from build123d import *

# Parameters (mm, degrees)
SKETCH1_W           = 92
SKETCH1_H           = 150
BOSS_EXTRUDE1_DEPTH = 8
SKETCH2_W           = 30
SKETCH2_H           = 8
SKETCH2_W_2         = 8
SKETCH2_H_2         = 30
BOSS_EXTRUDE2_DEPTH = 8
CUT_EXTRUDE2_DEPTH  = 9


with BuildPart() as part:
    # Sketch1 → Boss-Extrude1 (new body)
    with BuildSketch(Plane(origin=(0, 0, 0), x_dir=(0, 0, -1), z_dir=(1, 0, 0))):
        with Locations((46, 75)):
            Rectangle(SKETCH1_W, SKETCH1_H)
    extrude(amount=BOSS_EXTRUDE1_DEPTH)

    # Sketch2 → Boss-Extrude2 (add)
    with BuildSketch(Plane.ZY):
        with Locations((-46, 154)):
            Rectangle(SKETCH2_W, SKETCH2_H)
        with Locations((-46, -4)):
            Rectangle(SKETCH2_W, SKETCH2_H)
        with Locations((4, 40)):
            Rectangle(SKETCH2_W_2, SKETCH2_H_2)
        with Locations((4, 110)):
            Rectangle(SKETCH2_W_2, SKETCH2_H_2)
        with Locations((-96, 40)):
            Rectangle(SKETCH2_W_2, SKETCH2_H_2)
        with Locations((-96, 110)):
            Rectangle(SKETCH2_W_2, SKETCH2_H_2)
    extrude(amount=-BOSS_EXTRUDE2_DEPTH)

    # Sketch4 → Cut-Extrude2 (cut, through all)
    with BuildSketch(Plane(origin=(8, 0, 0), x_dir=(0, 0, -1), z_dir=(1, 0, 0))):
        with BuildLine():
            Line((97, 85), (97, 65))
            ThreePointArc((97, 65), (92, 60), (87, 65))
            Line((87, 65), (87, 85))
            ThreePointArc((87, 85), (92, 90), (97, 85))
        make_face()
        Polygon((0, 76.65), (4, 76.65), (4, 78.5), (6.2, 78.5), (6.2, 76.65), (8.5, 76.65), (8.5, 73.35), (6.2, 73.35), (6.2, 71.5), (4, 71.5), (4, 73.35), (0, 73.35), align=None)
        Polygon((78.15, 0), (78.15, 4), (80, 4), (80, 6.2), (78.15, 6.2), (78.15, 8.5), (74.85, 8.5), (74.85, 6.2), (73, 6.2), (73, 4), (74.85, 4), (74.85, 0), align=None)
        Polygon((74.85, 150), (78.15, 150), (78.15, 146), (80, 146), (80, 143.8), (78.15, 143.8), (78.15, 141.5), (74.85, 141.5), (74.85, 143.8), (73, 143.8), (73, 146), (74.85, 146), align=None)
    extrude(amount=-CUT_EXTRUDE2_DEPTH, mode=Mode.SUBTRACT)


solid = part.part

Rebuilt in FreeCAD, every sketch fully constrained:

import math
import FreeCAD as App
import Part
import Sketcher
from FreeCAD import Vector
Q = App.Units.Quantity

doc = App.newDocument("Part")
body = doc.addObject("PartDesign::Body", "Body")

# Sketch on YZ plane
sketch1 = body.newObject("Sketcher::SketchObject", "Sketch")
sketch1.AttachmentSupport = (doc.getObject("YZ_Plane"), [""])
sketch1.MapMode = "FlatFace"
sketch1.addGeometry(Part.LineSegment(Vector(150, 0, 0), Vector(0, 0, 0)), False)
sketch1.addGeometry(Part.LineSegment(Vector(0, 0, 0), Vector(0, -92, 0)), False)
sketch1.addGeometry(Part.LineSegment(Vector(0, -92, 0), Vector(150, -92, 0)), False)
sketch1.addGeometry(Part.LineSegment(Vector(150, -92, 0), Vector(150, 0, 0)), False)
sketch1.addConstraint(Sketcher.Constraint("Coincident", 0, 2, 1, 1))
sketch1.addConstraint(Sketcher.Constraint("Coincident", 1, 2, 2, 1))
sketch1.addConstraint(Sketcher.Constraint("Coincident", 2, 2, 3, 1))
sketch1.addConstraint(Sketcher.Constraint("Coincident", 3, 2, 0, 1))
sketch1.addConstraint(Sketcher.Constraint("Horizontal", 0))
sketch1.addConstraint(Sketcher.Constraint("Vertical", 1))
sketch1.addConstraint(Sketcher.Constraint("Horizontal", 2))
sketch1.addConstraint(Sketcher.Constraint("Vertical", 3))
sketch1.addConstraint(Sketcher.Constraint("Coincident", 0, 2, -1, 1))
sketch1.addConstraint(Sketcher.Constraint("DistanceX", 0, 2, 0, 1, Q("150 mm")))
sketch1.addConstraint(Sketcher.Constraint("DistanceY", 1, 2, 1, 1, Q("92 mm")))
pad1 = body.newObject("PartDesign::Pad", "Pad")
pad1.Profile = sketch1
pad1.Length = 8

# Sketch on YZ plane
sketch2 = body.newObject("Sketcher::SketchObject", "Sketch001")
sketch2.AttachmentSupport = (doc.getObject("YZ_Plane"), [""])
sketch2.MapMode = "FlatFace"
sketch2.addGeometry(Part.LineSegment(Vector(158, -61, 0), Vector(150, -61, 0)), False)
sketch2.addGeometry(Part.LineSegment(Vector(150, -61, 0), Vector(150, -31, 0)), False)
sketch2.addGeometry(Part.LineSegment(Vector(150, -31, 0), Vector(158, -31, 0)), False)
sketch2.addGeometry(Part.LineSegment(Vector(158, -31, 0), Vector(158, -61, 0)), False)
sketch2.addGeometry(Part.LineSegment(Vector(0, -61, 0), Vector(-8, -61, 0)), False)
sketch2.addGeometry(Part.LineSegment(Vector(-8, -61, 0), Vector(-8, -31, 0)), False)
sketch2.addGeometry(Part.LineSegment(Vector(-8, -31, 0), Vector(0, -31, 0)), False)
sketch2.addGeometry(Part.LineSegment(Vector(0, -31, 0), Vector(0, -61, 0)), False)
sketch2.addGeometry(Part.LineSegment(Vector(55, 0, 0), Vector(25, 0, 0)), False)
sketch2.addGeometry(Part.LineSegment(Vector(25, 0, 0), Vector(25, 8, 0)), False)
sketch2.addGeometry(Part.LineSegment(Vector(25, 8, 0), Vector(55, 8, 0)), False)
sketch2.addGeometry(Part.LineSegment(Vector(55, 8, 0), Vector(55, 0, 0)), False)
sketch2.addGeometry(Part.LineSegment(Vector(125, 0, 0), Vector(95, 0, 0)), False)
sketch2.addGeometry(Part.LineSegment(Vector(95, 0, 0), Vector(95, 8, 0)), False)
sketch2.addGeometry(Part.LineSegment(Vector(95, 8, 0), Vector(125, 8, 0)), False)
sketch2.addGeometry(Part.LineSegment(Vector(125, 8, 0), Vector(125, 0, 0)), False)
sketch2.addGeometry(Part.LineSegment(Vector(55, -100, 0), Vector(25, -100, 0)), False)
sketch2.addGeometry(Part.LineSegment(Vector(25, -100, 0), Vector(25, -92, 0)), False)
sketch2.addGeometry(Part.LineSegment(Vector(25, -92, 0), Vector(55, -92, 0)), False)
sketch2.addGeometry(Part.LineSegment(Vector(55, -92, 0), Vector(55, -100, 0)), False)
sketch2.addGeometry(Part.LineSegment(Vector(125, -100, 0), Vector(95, -100, 0)), False)
sketch2.addGeometry(Part.LineSegment(Vector(95, -100, 0), Vector(95, -92, 0)), False)
sketch2.addGeometry(Part.LineSegment(Vector(95, -92, 0), Vector(125, -92, 0)), False)
sketch2.addGeometry(Part.LineSegment(Vector(125, -92, 0), Vector(125, -100, 0)), False)
sketch2.addConstraint(Sketcher.Constraint("Coincident", 0, 2, 1, 1))
sketch2.addConstraint(Sketcher.Constraint("Coincident", 1, 2, 2, 1))
sketch2.addConstraint(Sketcher.Constraint("Coincident", 2, 2, 3, 1))
sketch2.addConstraint(Sketcher.Constraint("Coincident", 3, 2, 0, 1))
sketch2.addConstraint(Sketcher.Constraint("Coincident", 4, 2, 5, 1))
sketch2.addConstraint(Sketcher.Constraint("Coincident", 5, 2, 6, 1))
sketch2.addConstraint(Sketcher.Constraint("Coincident", 6, 2, 7, 1))
sketch2.addConstraint(Sketcher.Constraint("Coincident", 7, 2, 4, 1))
sketch2.addConstraint(Sketcher.Constraint("Coincident", 8, 2, 9, 1))
sketch2.addConstraint(Sketcher.Constraint("Coincident", 9, 2, 10, 1))
sketch2.addConstraint(Sketcher.Constraint("Coincident", 10, 2, 11, 1))
sketch2.addConstraint(Sketcher.Constraint("Coincident", 11, 2, 8, 1))
sketch2.addConstraint(Sketcher.Constraint("Coincident", 12, 2, 13, 1))
sketch2.addConstraint(Sketcher.Constraint("Coincident", 13, 2, 14, 1))
sketch2.addConstraint(Sketcher.Constraint("Coincident", 14, 2, 15, 1))
sketch2.addConstraint(Sketcher.Constraint("Coincident", 15, 2, 12, 1))
sketch2.addConstraint(Sketcher.Constraint("Coincident", 16, 2, 17, 1))
sketch2.addConstraint(Sketcher.Constraint("Coincident", 17, 2, 18, 1))
sketch2.addConstraint(Sketcher.Constraint("Coincident", 18, 2, 19, 1))
sketch2.addConstraint(Sketcher.Constraint("Coincident", 19, 2, 16, 1))
sketch2.addConstraint(Sketcher.Constraint("Coincident", 20, 2, 21, 1))
sketch2.addConstraint(Sketcher.Constraint("Coincident", 21, 2, 22, 1))
sketch2.addConstraint(Sketcher.Constraint("Coincident", 22, 2, 23, 1))
sketch2.addConstraint(Sketcher.Constraint("Coincident", 23, 2, 20, 1))
sketch2.addConstraint(Sketcher.Constraint("Horizontal", 0))
sketch2.addConstraint(Sketcher.Constraint("Vertical", 1))
sketch2.addConstraint(Sketcher.Constraint("Horizontal", 2))
sketch2.addConstraint(Sketcher.Constraint("Vertical", 3))
sketch2.addConstraint(Sketcher.Constraint("Horizontal", 4))
sketch2.addConstraint(Sketcher.Constraint("Vertical", 5))
sketch2.addConstraint(Sketcher.Constraint("Horizontal", 6))
sketch2.addConstraint(Sketcher.Constraint("Vertical", 7))
sketch2.addConstraint(Sketcher.Constraint("Horizontal", 8))
sketch2.addConstraint(Sketcher.Constraint("Vertical", 9))
sketch2.addConstraint(Sketcher.Constraint("Horizontal", 10))
sketch2.addConstraint(Sketcher.Constraint("Vertical", 11))
sketch2.addConstraint(Sketcher.Constraint("Horizontal", 12))
sketch2.addConstraint(Sketcher.Constraint("Vertical", 13))
sketch2.addConstraint(Sketcher.Constraint("Horizontal", 14))
sketch2.addConstraint(Sketcher.Constraint("Vertical", 15))
sketch2.addConstraint(Sketcher.Constraint("Horizontal", 16))
sketch2.addConstraint(Sketcher.Constraint("Vertical", 17))
sketch2.addConstraint(Sketcher.Constraint("Horizontal", 18))
sketch2.addConstraint(Sketcher.Constraint("Vertical", 19))
sketch2.addConstraint(Sketcher.Constraint("Horizontal", 20))
sketch2.addConstraint(Sketcher.Constraint("Vertical", 21))
sketch2.addConstraint(Sketcher.Constraint("Horizontal", 22))
sketch2.addConstraint(Sketcher.Constraint("Vertical", 23))
sketch2.addConstraint(Sketcher.Constraint("PointOnObject", 6, 2, -2))
sketch2.addConstraint(Sketcher.Constraint("PointOnObject", 8, 2, -1))
sketch2.addConstraint(Sketcher.Constraint("PointOnObject", 12, 2, -1))
sketch2.addConstraint(Sketcher.Constraint("Horizontal", 3, 2, 4, 2))
sketch2.addConstraint(Sketcher.Constraint("Horizontal", 2, 2, 5, 2))
sketch2.addConstraint(Sketcher.Constraint("Horizontal", 10, 2, 13, 2))
sketch2.addConstraint(Sketcher.Constraint("Horizontal", 19, 2, 20, 2))
sketch2.addConstraint(Sketcher.Constraint("Horizontal", 18, 2, 21, 2))
sketch2.addConstraint(Sketcher.Constraint("Vertical", 9, 2, 16, 2))
sketch2.addConstraint(Sketcher.Constraint("Vertical", 11, 2, 18, 2))
sketch2.addConstraint(Sketcher.Constraint("Vertical", 13, 2, 20, 2))
sketch2.addConstraint(Sketcher.Constraint("Vertical", 15, 2, 22, 2))
sketch2.addConstraint(Sketcher.Constraint("Equal", 2, 4))
sketch2.addConstraint(Sketcher.Constraint("Equal", 10, 12))
sketch2.addConstraint(Sketcher.Constraint("Equal", 22, 1))
sketch2.addConstraint(Sketcher.Constraint("Equal", 6, 9))
sketch2.addConstraint(Sketcher.Constraint("Equal", 15, 17))
sketch2.addConstraint(Sketcher.Constraint("DistanceX", 0, 2, 0, 1, Q("8 mm")))
sketch2.addConstraint(Sketcher.Constraint("DistanceX", 8, 2, 8, 1, Q("30 mm")))
sketch2.addConstraint(Sketcher.Constraint("DistanceX", -1, 1, 0, 2, Q("150 mm")))
sketch2.addConstraint(Sketcher.Constraint("DistanceY", 0, 2, -1, 1, Q("61 mm")))
sketch2.addConstraint(Sketcher.Constraint("DistanceX", -1, 1, 8, 2, Q("25 mm")))
sketch2.addConstraint(Sketcher.Constraint("DistanceX", -1, 1, 12, 2, Q("95 mm")))
sketch2.addConstraint(Sketcher.Constraint("DistanceY", 16, 2, -1, 1, Q("100 mm")))
pad2 = body.newObject("PartDesign::Pad", "Pad001")
pad2.Profile = sketch2
pad2.Length = 8

# Sketch on YZ plane
sketch3 = body.newObject("Sketcher::SketchObject", "Sketch002")
sketch3.AttachmentSupport = (doc.getObject("YZ_Plane"), [""])
sketch3.MapMode = "FlatFace"
sketch3.AttachmentOffset = App.Placement(Vector(0, 0, 8), App.Rotation())
sketch3.addGeometry(Part.LineSegment(Vector(65, -97, 0), Vector(85, -97, 0)), False)
sketch3.addGeometry(Part.ArcOfCircle(Part.Circle(Vector(85, -92, 0), Vector(0, 0, 1), 5), math.radians(-90), math.radians(90)), False)
sketch3.addGeometry(Part.LineSegment(Vector(85, -87, 0), Vector(65, -87, 0)), False)
sketch3.addGeometry(Part.ArcOfCircle(Part.Circle(Vector(65, -92, 0), Vector(0, 0, 1), 5), math.radians(90), math.radians(270)), False)
sketch3.addGeometry(Part.LineSegment(Vector(76.65, -4, 0), Vector(76.65, 0, 0)), False)
sketch3.addGeometry(Part.LineSegment(Vector(76.65, 0, 0), Vector(73.35, 0, 0)), False)
sketch3.addGeometry(Part.LineSegment(Vector(73.35, 0, 0), Vector(73.35, -4, 0)), False)
sketch3.addGeometry(Part.LineSegment(Vector(73.35, -4, 0), Vector(71.5, -4, 0)), False)
sketch3.addGeometry(Part.LineSegment(Vector(71.5, -4, 0), Vector(71.5, -6.2, 0)), False)
sketch3.addGeometry(Part.LineSegment(Vector(71.5, -6.2, 0), Vector(73.35, -6.2, 0)), False)
sketch3.addGeometry(Part.LineSegment(Vector(73.35, -6.2, 0), Vector(73.35, -8.5, 0)), False)
sketch3.addGeometry(Part.LineSegment(Vector(73.35, -8.5, 0), Vector(76.65, -8.5, 0)), False)
sketch3.addGeometry(Part.LineSegment(Vector(76.65, -8.5, 0), Vector(76.65, -6.2, 0)), False)
sketch3.addGeometry(Part.LineSegment(Vector(76.65, -6.2, 0), Vector(78.5, -6.2, 0)), False)
sketch3.addGeometry(Part.LineSegment(Vector(78.5, -6.2, 0), Vector(78.5, -4, 0)), False)
sketch3.addGeometry(Part.LineSegment(Vector(78.5, -4, 0), Vector(76.65, -4, 0)), False)
sketch3.addGeometry(Part.LineSegment(Vector(0, -78.15, 0), Vector(4, -78.15, 0)), False)
sketch3.addGeometry(Part.LineSegment(Vector(4, -78.15, 0), Vector(4, -80, 0)), False)
sketch3.addGeometry(Part.LineSegment(Vector(4, -80, 0), Vector(6.2, -80, 0)), False)
sketch3.addGeometry(Part.LineSegment(Vector(6.2, -80, 0), Vector(6.2, -78.15, 0)), False)
sketch3.addGeometry(Part.LineSegment(Vector(6.2, -78.15, 0), Vector(8.5, -78.15, 0)), False)
sketch3.addGeometry(Part.LineSegment(Vector(8.5, -78.15, 0), Vector(8.5, -74.85, 0)), False)
sketch3.addGeometry(Part.LineSegment(Vector(8.5, -74.85, 0), Vector(6.2, -74.85, 0)), False)
sketch3.addGeometry(Part.LineSegment(Vector(6.2, -74.85, 0), Vector(6.2, -73, 0)), False)
sketch3.addGeometry(Part.LineSegment(Vector(6.2, -73, 0), Vector(4, -73, 0)), False)
sketch3.addGeometry(Part.LineSegment(Vector(4, -73, 0), Vector(4, -74.85, 0)), False)
sketch3.addGeometry(Part.LineSegment(Vector(4, -74.85, 0), Vector(0, -74.85, 0)), False)
sketch3.addGeometry(Part.LineSegment(Vector(0, -74.85, 0), Vector(0, -78.15, 0)), False)
sketch3.addGeometry(Part.LineSegment(Vector(150, -78.15, 0), Vector(150, -74.85, 0)), False)
sketch3.addGeometry(Part.LineSegment(Vector(150, -74.85, 0), Vector(146, -74.85, 0)), False)
sketch3.addGeometry(Part.LineSegment(Vector(146, -74.85, 0), Vector(146, -73, 0)), False)
sketch3.addGeometry(Part.LineSegment(Vector(146, -73, 0), Vector(143.8, -73, 0)), False)
sketch3.addGeometry(Part.LineSegment(Vector(143.8, -73, 0), Vector(143.8, -74.85, 0)), False)
sketch3.addGeometry(Part.LineSegment(Vector(143.8, -74.85, 0), Vector(141.5, -74.85, 0)), False)
sketch3.addGeometry(Part.LineSegment(Vector(141.5, -74.85, 0), Vector(141.5, -78.15, 0)), False)
sketch3.addGeometry(Part.LineSegment(Vector(141.5, -78.15, 0), Vector(143.8, -78.15, 0)), False)
sketch3.addGeometry(Part.LineSegment(Vector(143.8, -78.15, 0), Vector(143.8, -80, 0)), False)
sketch3.addGeometry(Part.LineSegment(Vector(143.8, -80, 0), Vector(146, -80, 0)), False)
sketch3.addGeometry(Part.LineSegment(Vector(146, -80, 0), Vector(146, -78.15, 0)), False)
sketch3.addGeometry(Part.LineSegment(Vector(146, -78.15, 0), Vector(150, -78.15, 0)), False)
sketch3.addConstraint(Sketcher.Constraint("Tangent", 0, 2, 1, 1))
sketch3.addConstraint(Sketcher.Constraint("Tangent", 1, 2, 2, 1))
sketch3.addConstraint(Sketcher.Constraint("Tangent", 2, 2, 3, 1))
sketch3.addConstraint(Sketcher.Constraint("Tangent", 3, 2, 0, 1))
sketch3.addConstraint(Sketcher.Constraint("Coincident", 4, 2, 5, 1))
sketch3.addConstraint(Sketcher.Constraint("Coincident", 5, 2, 6, 1))
sketch3.addConstraint(Sketcher.Constraint("Coincident", 6, 2, 7, 1))
sketch3.addConstraint(Sketcher.Constraint("Coincident", 7, 2, 8, 1))
sketch3.addConstraint(Sketcher.Constraint("Coincident", 8, 2, 9, 1))
sketch3.addConstraint(Sketcher.Constraint("Coincident", 9, 2, 10, 1))
sketch3.addConstraint(Sketcher.Constraint("Coincident", 10, 2, 11, 1))
sketch3.addConstraint(Sketcher.Constraint("Coincident", 11, 2, 12, 1))
sketch3.addConstraint(Sketcher.Constraint("Coincident", 12, 2, 13, 1))
sketch3.addConstraint(Sketcher.Constraint("Coincident", 13, 2, 14, 1))
sketch3.addConstraint(Sketcher.Constraint("Coincident", 14, 2, 15, 1))
sketch3.addConstraint(Sketcher.Constraint("Coincident", 15, 2, 4, 1))
sketch3.addConstraint(Sketcher.Constraint("Coincident", 16, 2, 17, 1))
sketch3.addConstraint(Sketcher.Constraint("Coincident", 17, 2, 18, 1))
sketch3.addConstraint(Sketcher.Constraint("Coincident", 18, 2, 19, 1))
sketch3.addConstraint(Sketcher.Constraint("Coincident", 19, 2, 20, 1))
sketch3.addConstraint(Sketcher.Constraint("Coincident", 20, 2, 21, 1))
sketch3.addConstraint(Sketcher.Constraint("Coincident", 21, 2, 22, 1))
sketch3.addConstraint(Sketcher.Constraint("Coincident", 22, 2, 23, 1))
sketch3.addConstraint(Sketcher.Constraint("Coincident", 23, 2, 24, 1))
sketch3.addConstraint(Sketcher.Constraint("Coincident", 24, 2, 25, 1))
sketch3.addConstraint(Sketcher.Constraint("Coincident", 25, 2, 26, 1))
sketch3.addConstraint(Sketcher.Constraint("Coincident", 26, 2, 27, 1))
sketch3.addConstraint(Sketcher.Constraint("Coincident", 27, 2, 16, 1))
sketch3.addConstraint(Sketcher.Constraint("Coincident", 28, 2, 29, 1))
sketch3.addConstraint(Sketcher.Constraint("Coincident", 29, 2, 30, 1))
sketch3.addConstraint(Sketcher.Constraint("Coincident", 30, 2, 31, 1))
sketch3.addConstraint(Sketcher.Constraint("Coincident", 31, 2, 32, 1))
sketch3.addConstraint(Sketcher.Constraint("Coincident", 32, 2, 33, 1))
sketch3.addConstraint(Sketcher.Constraint("Coincident", 33, 2, 34, 1))
sketch3.addConstraint(Sketcher.Constraint("Coincident", 34, 2, 35, 1))
sketch3.addConstraint(Sketcher.Constraint("Coincident", 35, 2, 36, 1))
sketch3.addConstraint(Sketcher.Constraint("Coincident", 36, 2, 37, 1))
sketch3.addConstraint(Sketcher.Constraint("Coincident", 37, 2, 38, 1))
sketch3.addConstraint(Sketcher.Constraint("Coincident", 38, 2, 39, 1))
sketch3.addConstraint(Sketcher.Constraint("Coincident", 39, 2, 28, 1))
sketch3.addConstraint(Sketcher.Constraint("Horizontal", 0))
sketch3.addConstraint(Sketcher.Constraint("Horizontal", 2))
sketch3.addConstraint(Sketcher.Constraint("Vertical", 4))
sketch3.addConstraint(Sketcher.Constraint("Horizontal", 5))
sketch3.addConstraint(Sketcher.Constraint("Vertical", 6))
sketch3.addConstraint(Sketcher.Constraint("Horizontal", 7))
sketch3.addConstraint(Sketcher.Constraint("Vertical", 8))
sketch3.addConstraint(Sketcher.Constraint("Horizontal", 9))
sketch3.addConstraint(Sketcher.Constraint("Vertical", 10))
sketch3.addConstraint(Sketcher.Constraint("Horizontal", 11))
sketch3.addConstraint(Sketcher.Constraint("Vertical", 12))
sketch3.addConstraint(Sketcher.Constraint("Horizontal", 13))
sketch3.addConstraint(Sketcher.Constraint("Vertical", 14))
sketch3.addConstraint(Sketcher.Constraint("Horizontal", 15))
sketch3.addConstraint(Sketcher.Constraint("Horizontal", 16))
sketch3.addConstraint(Sketcher.Constraint("Vertical", 17))
sketch3.addConstraint(Sketcher.Constraint("Horizontal", 18))
sketch3.addConstraint(Sketcher.Constraint("Vertical", 19))
sketch3.addConstraint(Sketcher.Constraint("Horizontal", 20))
sketch3.addConstraint(Sketcher.Constraint("Vertical", 21))
sketch3.addConstraint(Sketcher.Constraint("Horizontal", 22))
sketch3.addConstraint(Sketcher.Constraint("Vertical", 23))
sketch3.addConstraint(Sketcher.Constraint("Horizontal", 24))
sketch3.addConstraint(Sketcher.Constraint("Vertical", 25))
sketch3.addConstraint(Sketcher.Constraint("Horizontal", 26))
sketch3.addConstraint(Sketcher.Constraint("Vertical", 27))
sketch3.addConstraint(Sketcher.Constraint("Vertical", 28))
sketch3.addConstraint(Sketcher.Constraint("Horizontal", 29))
sketch3.addConstraint(Sketcher.Constraint("Vertical", 30))
sketch3.addConstraint(Sketcher.Constraint("Horizontal", 31))
sketch3.addConstraint(Sketcher.Constraint("Vertical", 32))
sketch3.addConstraint(Sketcher.Constraint("Horizontal", 33))
sketch3.addConstraint(Sketcher.Constraint("Vertical", 34))
sketch3.addConstraint(Sketcher.Constraint("Horizontal", 35))
sketch3.addConstraint(Sketcher.Constraint("Vertical", 36))
sketch3.addConstraint(Sketcher.Constraint("Horizontal", 37))
sketch3.addConstraint(Sketcher.Constraint("Vertical", 38))
sketch3.addConstraint(Sketcher.Constraint("Horizontal", 39))
sketch3.addConstraint(Sketcher.Constraint("PointOnObject", 4, 2, -1))
sketch3.addConstraint(Sketcher.Constraint("PointOnObject", 26, 2, -2))
sketch3.addConstraint(Sketcher.Constraint("Horizontal", 9, 2, 12, 2))
sketch3.addConstraint(Sketcher.Constraint("Horizontal", 7, 2, 14, 2))
sketch3.addConstraint(Sketcher.Constraint("Horizontal", 16, 2, 19, 2))
sketch3.addConstraint(Sketcher.Constraint("Horizontal", 22, 2, 25, 2))
sketch3.addConstraint(Sketcher.Constraint("Horizontal", 26, 2, 28, 2))
sketch3.addConstraint(Sketcher.Constraint("Horizontal", 24, 2, 30, 2))
sketch3.addConstraint(Sketcher.Constraint("Horizontal", 29, 2, 32, 2))
sketch3.addConstraint(Sketcher.Constraint("Horizontal", 27, 2, 34, 2))
sketch3.addConstraint(Sketcher.Constraint("Horizontal", 18, 2, 36, 2))
sketch3.addConstraint(Sketcher.Constraint("Horizontal", 35, 2, 38, 2))
sketch3.addConstraint(Sketcher.Constraint("Vertical", 6, 2, 9, 2))
sketch3.addConstraint(Sketcher.Constraint("Vertical", 4, 2, 11, 2))
sketch3.addConstraint(Sketcher.Constraint("Vertical", 19, 2, 22, 2))
sketch3.addConstraint(Sketcher.Constraint("Vertical", 17, 2, 24, 2))
sketch3.addConstraint(Sketcher.Constraint("Vertical", 32, 2, 35, 2))
sketch3.addConstraint(Sketcher.Constraint("Vertical", 30, 2, 37, 2))
sketch3.addConstraint(Sketcher.Constraint("Equal", 9, 13))
sketch3.addConstraint(Sketcher.Constraint("Equal", 26, 29))
sketch3.addConstraint(Sketcher.Constraint("Equal", 24, 31))
sketch3.addConstraint(Sketcher.Constraint("Equal", 22, 33))
sketch3.addConstraint(Sketcher.Constraint("Equal", 39, 4))
sketch3.addConstraint(Sketcher.Constraint("Equal", 37, 8))
sketch3.addConstraint(Sketcher.Constraint("Equal", 35, 10))
sketch3.addConstraint(Sketcher.Constraint("Equal", 15, 17))
sketch3.addConstraint(Sketcher.Constraint("Equal", 11, 21))
sketch3.addConstraint(Sketcher.Constraint("Equal", 19, 23))
sketch3.addConstraint(Sketcher.Constraint("Radius", 1, Q("5 mm")))
sketch3.addConstraint(Sketcher.Constraint("DistanceX", 0, 1, 0, 2, Q("20 mm")))
sketch3.addConstraint(Sketcher.Constraint("DistanceX", 16, 1, 16, 2, Q("4 mm")))
sketch3.addConstraint(Sketcher.Constraint("DistanceX", 5, 2, 5, 1, Q("3.3 mm")))
sketch3.addConstraint(Sketcher.Constraint("DistanceX", 18, 1, 18, 2, Q("2.2 mm")))
sketch3.addConstraint(Sketcher.Constraint("DistanceX", 20, 1, 20, 2, Q("2.3 mm")))
sketch3.addConstraint(Sketcher.Constraint("DistanceX", -1, 1, 1, 3, Q("85 mm")))
sketch3.addConstraint(Sketcher.Constraint("DistanceY", 1, 3, -1, 1, Q("92 mm")))
sketch3.addConstraint(Sketcher.Constraint("DistanceY", 17, 2, -1, 1, Q("80 mm")))
sketch3.addConstraint(Sketcher.Constraint("DistanceY", 23, 2, -1, 1, Q("73 mm")))
sketch3.addConstraint(Sketcher.Constraint("DistanceX", -1, 1, 28, 2, Q("150 mm")))
sketch3.addConstraint(Sketcher.Constraint("DistanceX", -1, 1, 7, 2, Q("71.5 mm")))
pocket1 = body.newObject("PartDesign::Pocket", "Pocket")
pocket1.Profile = sketch3
pocket1.Type = "ThroughAll"

doc.recompute()
